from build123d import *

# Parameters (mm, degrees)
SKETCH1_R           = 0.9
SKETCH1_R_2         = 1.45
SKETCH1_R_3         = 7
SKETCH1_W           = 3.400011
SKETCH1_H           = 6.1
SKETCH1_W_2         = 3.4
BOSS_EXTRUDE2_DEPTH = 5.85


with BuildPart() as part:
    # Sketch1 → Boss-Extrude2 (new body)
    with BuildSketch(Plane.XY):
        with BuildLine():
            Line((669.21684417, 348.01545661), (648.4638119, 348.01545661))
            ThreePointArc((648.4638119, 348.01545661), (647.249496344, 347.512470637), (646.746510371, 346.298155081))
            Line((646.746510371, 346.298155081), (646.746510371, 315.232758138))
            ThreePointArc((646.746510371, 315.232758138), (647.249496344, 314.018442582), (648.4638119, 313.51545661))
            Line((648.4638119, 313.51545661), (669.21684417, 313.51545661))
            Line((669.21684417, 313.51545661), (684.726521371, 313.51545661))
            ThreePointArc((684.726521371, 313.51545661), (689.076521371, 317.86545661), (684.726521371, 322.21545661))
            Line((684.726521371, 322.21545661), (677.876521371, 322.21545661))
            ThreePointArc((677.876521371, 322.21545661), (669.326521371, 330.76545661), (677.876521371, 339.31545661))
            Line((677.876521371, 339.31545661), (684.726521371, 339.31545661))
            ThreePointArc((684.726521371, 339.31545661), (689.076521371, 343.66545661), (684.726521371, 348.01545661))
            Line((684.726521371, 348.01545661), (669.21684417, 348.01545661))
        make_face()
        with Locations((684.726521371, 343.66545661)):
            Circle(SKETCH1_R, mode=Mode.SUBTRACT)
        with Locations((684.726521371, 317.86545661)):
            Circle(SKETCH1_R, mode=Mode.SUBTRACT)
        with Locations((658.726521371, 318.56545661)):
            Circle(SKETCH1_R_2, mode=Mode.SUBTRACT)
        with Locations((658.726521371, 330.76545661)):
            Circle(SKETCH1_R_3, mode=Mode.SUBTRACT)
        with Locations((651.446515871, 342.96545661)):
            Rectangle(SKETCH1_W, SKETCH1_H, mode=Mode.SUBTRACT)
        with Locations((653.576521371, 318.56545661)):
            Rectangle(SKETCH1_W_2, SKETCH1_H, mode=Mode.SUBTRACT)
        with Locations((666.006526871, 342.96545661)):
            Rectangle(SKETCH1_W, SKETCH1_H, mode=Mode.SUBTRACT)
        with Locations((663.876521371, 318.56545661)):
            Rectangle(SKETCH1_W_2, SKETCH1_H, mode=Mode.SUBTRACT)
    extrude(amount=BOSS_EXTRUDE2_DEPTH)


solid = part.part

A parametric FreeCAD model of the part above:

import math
import FreeCAD as App
import Part
import Sketcher

V = App.Vector

doc = App.newDocument("Part")
body = doc.addObject("PartDesign::Body", "Body")

sketch1 = body.newObject("Sketcher::SketchObject", "Sketch")
sketch1.AttachmentSupport = (doc.getObject("XY_Plane"), [""])
sketch1.MapMode = "FlatFace"
sketch1.addGeometry([
    Part.ArcOfCircle(Part.Circle(V(648.5, 346.3, 0), V(0, 0, 1), 1.7), math.radians(90), math.radians(180)),
    Part.LineSegment(V(646.7, 346.3, 0), V(646.7, 315.2, 0)),
    Part.ArcOfCircle(Part.Circle(V(648.5, 315.2, 0), V(0, 0, 1), 1.7), math.radians(-180), math.radians(-90)),
    Part.LineSegment(V(648.5, 313.5, 0), V(684.7, 313.5, 0)),
    Part.ArcOfCircle(Part.Circle(V(684.7, 317.9, 0), V(0, 0, 1), 4.3), math.radians(-90), math.radians(90)),
    Part.LineSegment(V(684.7, 322.2, 0), V(677.9, 322.2, 0)),
    Part.ArcOfCircle(Part.Circle(V(677.9, 330.8, 0), V(0, 0, 1), 8.6), math.radians(90), math.radians(270)),
    Part.LineSegment(V(677.9, 339.3, 0), V(684.7, 339.3, 0)),
    Part.ArcOfCircle(Part.Circle(V(684.7, 343.7, 0), V(0, 0, 1), 4.3), math.radians(-90), math.radians(90)),
    Part.LineSegment(V(684.7, 348, 0), V(648.5, 348, 0)),
    Part.LineSegment(V(655.3, 315.5, 0), V(651.9, 315.5, 0)),
    Part.LineSegment(V(651.9, 315.5, 0), V(651.9, 321.6, 0)),
    Part.LineSegment(V(651.9, 321.6, 0), V(655.3, 321.6, 0)),
    Part.LineSegment(V(655.3, 321.6, 0), V(655.3, 315.5, 0)),
    Part.Circle(V(658.7, 318.6, 0), V(0, 0, 1), 1.4),
    Part.LineSegment(V(665.6, 315.5, 0), V(662.2, 315.5, 0)),
    Part.LineSegment(V(662.2, 315.5, 0), V(662.2, 321.6, 0)),
    Part.LineSegment(V(662.2, 321.6, 0), V(665.6, 321.6, 0)),
    Part.LineSegment(V(665.6, 321.6, 0), V(665.6, 315.5, 0)),
    Part.Circle(V(684.7, 317.9, 0), V(0, 0, 1), 0.9),
    Part.Circle(V(658.7, 330.8, 0), V(0, 0, 1), 7),
    Part.LineSegment(V(653.1, 339.9, 0), V(649.7, 339.9, 0)),
    Part.LineSegment(V(649.7, 339.9, 0), V(649.7, 346, 0)),
    Part.LineSegment(V(649.7, 346, 0), V(653.1, 346, 0)),
    Part.LineSegment(V(653.1, 346, 0), V(653.1, 339.9, 0)),
    Part.LineSegment(V(667.7, 339.9, 0), V(664.3, 339.9, 0)),
    Part.LineSegment(V(664.3, 339.9, 0), V(664.3, 346, 0)),
    Part.LineSegment(V(664.3, 346, 0), V(667.7, 346, 0)),
    Part.LineSegment(V(667.7, 346, 0), V(667.7, 339.9, 0)),
    Part.Circle(V(684.7, 343.7, 0), V(0, 0, 1), 0.9),
], False)
sketch1.addConstraint([
    Sketcher.Constraint("Tangent", 0, 2, 1, 1),
    Sketcher.Constraint("Tangent", 1, 2, 2, 1),
    Sketcher.Constraint("Tangent", 2, 2, 3, 1),
    Sketcher.Constraint("Tangent", 3, 2, 4, 1),
    Sketcher.Constraint("Tangent", 4, 2, 5, 1),
    Sketcher.Constraint("Tangent", 5, 2, 6, 2),
    Sketcher.Constraint("Tangent", 6, 1, 7, 1),
    Sketcher.Constraint("Tangent", 7, 2, 8, 1),
    Sketcher.Constraint("Tangent", 8, 2, 9, 1),
    Sketcher.Constraint("Tangent", 9, 2, 0, 1),
    Sketcher.Constraint("Coincident", 10, 2, 11, 1),
    Sketcher.Constraint("Coincident", 11, 2, 12, 1),
    Sketcher.Constraint("Coincident", 12, 2, 13, 1),
    Sketcher.Constraint("Coincident", 13, 2, 10, 1),
    Sketcher.Constraint("Coincident", 15, 2, 16, 1),
    Sketcher.Constraint("Coincident", 16, 2, 17, 1),
    Sketcher.Constraint("Coincident", 17, 2, 18, 1),
    Sketcher.Constraint("Coincident", 18, 2, 15, 1),
    Sketcher.Constraint("Coincident", 21, 2, 22, 1),
    Sketcher.Constraint("Coincident", 22, 2, 23, 1),
    Sketcher.Constraint("Coincident", 23, 2, 24, 1),
    Sketcher.Constraint("Coincident", 24, 2, 21, 1),
    Sketcher.Constraint("Coincident", 25, 2, 26, 1),
    Sketcher.Constraint("Coincident", 26, 2, 27, 1),
    Sketcher.Constraint("Coincident", 27, 2, 28, 1),
    Sketcher.Constraint("Coincident", 28, 2, 25, 1),
    Sketcher.Constraint("Vertical", 1),
    Sketcher.Constraint("Horizontal", 3),
    Sketcher.Constraint("Horizontal", 5),
    Sketcher.Constraint("Horizontal", 7),
    Sketcher.Constraint("Horizontal", 9),
    Sketcher.Constraint("Horizontal", 10),
    Sketcher.Constraint("Vertical", 11),
    Sketcher.Constraint("Horizontal", 12),
    Sketcher.Constraint("Vertical", 13),
    Sketcher.Constraint("Horizontal", 15),
    Sketcher.Constraint("Vertical", 16),
    Sketcher.Constraint("Horizontal", 17),
    Sketcher.Constraint("Vertical", 18),
    Sketcher.Constraint("Horizontal", 21),
    Sketcher.Constraint("Vertical", 22),
    Sketcher.Constraint("Horizontal", 23),
    Sketcher.Constraint("Vertical", 24),
    Sketcher.Constraint("Horizontal", 25),
    Sketcher.Constraint("Vertical", 26),
    Sketcher.Constraint("Horizontal", 27),
    Sketcher.Constraint("Vertical", 28),
    Sketcher.Constraint("Coincident", 19, 3, 4, 3),
    Sketcher.Constraint("Coincident", 29, 3, 8, 3),
    Sketcher.Constraint("Equal", 0, 2),
    Sketcher.Constraint("Equal", 4, 8),
    Sketcher.Constraint("Equal", 19, 29),
    Sketcher.Constraint("Horizontal", 6, 3, 20, 3),
    Sketcher.Constraint("Horizontal", 13, 2, 15, 2),
    Sketcher.Constraint("Horizontal", 12, 2, 16, 2),
    Sketcher.Constraint("Horizontal", 24, 2, 25, 2),
    Sketcher.Constraint("Horizontal", 23, 2, 26, 2),
    Sketcher.Constraint("Vertical", 4, 3, 8, 3),
    Sketcher.Constraint("Vertical", 14, 3, 20, 3),
    Sketcher.Constraint("Equal", 12, 15),
    Sketcher.Constraint("Equal", 23, 25),
    Sketcher.Constraint("Equal", 18, 22),
    Sketcher.Constraint("Diameter", 20, 14.0),
    Sketcher.Constraint("Diameter", 14, 2.9),
    Sketcher.Constraint("Diameter", 19, 1.8),
    Sketcher.Constraint("Radius", 4, 4.35),
    Sketcher.Constraint("Radius", 6, 8.55),
    Sketcher.Constraint("DistanceX", 10, 2, 10, 1, 3.4),
    Sketcher.Constraint("DistanceY", 11, 1, 11, 2, 6.1),
    Sketcher.Constraint("DistanceX", 14, 3, 4, 3, 26.0),
    Sketcher.Constraint("DistanceY", 2, 2, 10, 2, 2.0),
    Sketcher.Constraint("DistanceX", 0, 2, 21, 2, 3.0),
    Sketcher.Constraint("DistanceY", 22, 2, 9, 2, 2.0),
    Sketcher.Constraint("DistanceX", 5, 2, 5, 1, 6.85),
    Sketcher.Constraint("Radius", 0, 1.717302),
    Sketcher.Constraint("DistanceY", 14, 3, 6, 3, 12.2),
    Sketcher.Constraint("DistanceX", 13, 2, 15, 2, 6.9),
    Sketcher.Constraint("DistanceX", 10, 2, 14, 3, 6.85),
    Sketcher.Constraint("DistanceX", 20, 3, 25, 2, 5.58),
    Sketcher.Constraint("DistanceX", 24, 2, 25, 2, 11.16),
    Sketcher.Constraint("DistanceX", 3, 1, 3, 2, 36.262709),
    Sketcher.Constraint("DistanceX", -1, 1, 0, 3, 648.463812),
    Sketcher.Constraint("DistanceY", -1, 1, 2, 3, 315.232758),
])
pad1 = body.newObject("PartDesign::Pad", "Pad")
pad1.Profile = sketch1
pad1.Length = 5.85

doc.recompute()
